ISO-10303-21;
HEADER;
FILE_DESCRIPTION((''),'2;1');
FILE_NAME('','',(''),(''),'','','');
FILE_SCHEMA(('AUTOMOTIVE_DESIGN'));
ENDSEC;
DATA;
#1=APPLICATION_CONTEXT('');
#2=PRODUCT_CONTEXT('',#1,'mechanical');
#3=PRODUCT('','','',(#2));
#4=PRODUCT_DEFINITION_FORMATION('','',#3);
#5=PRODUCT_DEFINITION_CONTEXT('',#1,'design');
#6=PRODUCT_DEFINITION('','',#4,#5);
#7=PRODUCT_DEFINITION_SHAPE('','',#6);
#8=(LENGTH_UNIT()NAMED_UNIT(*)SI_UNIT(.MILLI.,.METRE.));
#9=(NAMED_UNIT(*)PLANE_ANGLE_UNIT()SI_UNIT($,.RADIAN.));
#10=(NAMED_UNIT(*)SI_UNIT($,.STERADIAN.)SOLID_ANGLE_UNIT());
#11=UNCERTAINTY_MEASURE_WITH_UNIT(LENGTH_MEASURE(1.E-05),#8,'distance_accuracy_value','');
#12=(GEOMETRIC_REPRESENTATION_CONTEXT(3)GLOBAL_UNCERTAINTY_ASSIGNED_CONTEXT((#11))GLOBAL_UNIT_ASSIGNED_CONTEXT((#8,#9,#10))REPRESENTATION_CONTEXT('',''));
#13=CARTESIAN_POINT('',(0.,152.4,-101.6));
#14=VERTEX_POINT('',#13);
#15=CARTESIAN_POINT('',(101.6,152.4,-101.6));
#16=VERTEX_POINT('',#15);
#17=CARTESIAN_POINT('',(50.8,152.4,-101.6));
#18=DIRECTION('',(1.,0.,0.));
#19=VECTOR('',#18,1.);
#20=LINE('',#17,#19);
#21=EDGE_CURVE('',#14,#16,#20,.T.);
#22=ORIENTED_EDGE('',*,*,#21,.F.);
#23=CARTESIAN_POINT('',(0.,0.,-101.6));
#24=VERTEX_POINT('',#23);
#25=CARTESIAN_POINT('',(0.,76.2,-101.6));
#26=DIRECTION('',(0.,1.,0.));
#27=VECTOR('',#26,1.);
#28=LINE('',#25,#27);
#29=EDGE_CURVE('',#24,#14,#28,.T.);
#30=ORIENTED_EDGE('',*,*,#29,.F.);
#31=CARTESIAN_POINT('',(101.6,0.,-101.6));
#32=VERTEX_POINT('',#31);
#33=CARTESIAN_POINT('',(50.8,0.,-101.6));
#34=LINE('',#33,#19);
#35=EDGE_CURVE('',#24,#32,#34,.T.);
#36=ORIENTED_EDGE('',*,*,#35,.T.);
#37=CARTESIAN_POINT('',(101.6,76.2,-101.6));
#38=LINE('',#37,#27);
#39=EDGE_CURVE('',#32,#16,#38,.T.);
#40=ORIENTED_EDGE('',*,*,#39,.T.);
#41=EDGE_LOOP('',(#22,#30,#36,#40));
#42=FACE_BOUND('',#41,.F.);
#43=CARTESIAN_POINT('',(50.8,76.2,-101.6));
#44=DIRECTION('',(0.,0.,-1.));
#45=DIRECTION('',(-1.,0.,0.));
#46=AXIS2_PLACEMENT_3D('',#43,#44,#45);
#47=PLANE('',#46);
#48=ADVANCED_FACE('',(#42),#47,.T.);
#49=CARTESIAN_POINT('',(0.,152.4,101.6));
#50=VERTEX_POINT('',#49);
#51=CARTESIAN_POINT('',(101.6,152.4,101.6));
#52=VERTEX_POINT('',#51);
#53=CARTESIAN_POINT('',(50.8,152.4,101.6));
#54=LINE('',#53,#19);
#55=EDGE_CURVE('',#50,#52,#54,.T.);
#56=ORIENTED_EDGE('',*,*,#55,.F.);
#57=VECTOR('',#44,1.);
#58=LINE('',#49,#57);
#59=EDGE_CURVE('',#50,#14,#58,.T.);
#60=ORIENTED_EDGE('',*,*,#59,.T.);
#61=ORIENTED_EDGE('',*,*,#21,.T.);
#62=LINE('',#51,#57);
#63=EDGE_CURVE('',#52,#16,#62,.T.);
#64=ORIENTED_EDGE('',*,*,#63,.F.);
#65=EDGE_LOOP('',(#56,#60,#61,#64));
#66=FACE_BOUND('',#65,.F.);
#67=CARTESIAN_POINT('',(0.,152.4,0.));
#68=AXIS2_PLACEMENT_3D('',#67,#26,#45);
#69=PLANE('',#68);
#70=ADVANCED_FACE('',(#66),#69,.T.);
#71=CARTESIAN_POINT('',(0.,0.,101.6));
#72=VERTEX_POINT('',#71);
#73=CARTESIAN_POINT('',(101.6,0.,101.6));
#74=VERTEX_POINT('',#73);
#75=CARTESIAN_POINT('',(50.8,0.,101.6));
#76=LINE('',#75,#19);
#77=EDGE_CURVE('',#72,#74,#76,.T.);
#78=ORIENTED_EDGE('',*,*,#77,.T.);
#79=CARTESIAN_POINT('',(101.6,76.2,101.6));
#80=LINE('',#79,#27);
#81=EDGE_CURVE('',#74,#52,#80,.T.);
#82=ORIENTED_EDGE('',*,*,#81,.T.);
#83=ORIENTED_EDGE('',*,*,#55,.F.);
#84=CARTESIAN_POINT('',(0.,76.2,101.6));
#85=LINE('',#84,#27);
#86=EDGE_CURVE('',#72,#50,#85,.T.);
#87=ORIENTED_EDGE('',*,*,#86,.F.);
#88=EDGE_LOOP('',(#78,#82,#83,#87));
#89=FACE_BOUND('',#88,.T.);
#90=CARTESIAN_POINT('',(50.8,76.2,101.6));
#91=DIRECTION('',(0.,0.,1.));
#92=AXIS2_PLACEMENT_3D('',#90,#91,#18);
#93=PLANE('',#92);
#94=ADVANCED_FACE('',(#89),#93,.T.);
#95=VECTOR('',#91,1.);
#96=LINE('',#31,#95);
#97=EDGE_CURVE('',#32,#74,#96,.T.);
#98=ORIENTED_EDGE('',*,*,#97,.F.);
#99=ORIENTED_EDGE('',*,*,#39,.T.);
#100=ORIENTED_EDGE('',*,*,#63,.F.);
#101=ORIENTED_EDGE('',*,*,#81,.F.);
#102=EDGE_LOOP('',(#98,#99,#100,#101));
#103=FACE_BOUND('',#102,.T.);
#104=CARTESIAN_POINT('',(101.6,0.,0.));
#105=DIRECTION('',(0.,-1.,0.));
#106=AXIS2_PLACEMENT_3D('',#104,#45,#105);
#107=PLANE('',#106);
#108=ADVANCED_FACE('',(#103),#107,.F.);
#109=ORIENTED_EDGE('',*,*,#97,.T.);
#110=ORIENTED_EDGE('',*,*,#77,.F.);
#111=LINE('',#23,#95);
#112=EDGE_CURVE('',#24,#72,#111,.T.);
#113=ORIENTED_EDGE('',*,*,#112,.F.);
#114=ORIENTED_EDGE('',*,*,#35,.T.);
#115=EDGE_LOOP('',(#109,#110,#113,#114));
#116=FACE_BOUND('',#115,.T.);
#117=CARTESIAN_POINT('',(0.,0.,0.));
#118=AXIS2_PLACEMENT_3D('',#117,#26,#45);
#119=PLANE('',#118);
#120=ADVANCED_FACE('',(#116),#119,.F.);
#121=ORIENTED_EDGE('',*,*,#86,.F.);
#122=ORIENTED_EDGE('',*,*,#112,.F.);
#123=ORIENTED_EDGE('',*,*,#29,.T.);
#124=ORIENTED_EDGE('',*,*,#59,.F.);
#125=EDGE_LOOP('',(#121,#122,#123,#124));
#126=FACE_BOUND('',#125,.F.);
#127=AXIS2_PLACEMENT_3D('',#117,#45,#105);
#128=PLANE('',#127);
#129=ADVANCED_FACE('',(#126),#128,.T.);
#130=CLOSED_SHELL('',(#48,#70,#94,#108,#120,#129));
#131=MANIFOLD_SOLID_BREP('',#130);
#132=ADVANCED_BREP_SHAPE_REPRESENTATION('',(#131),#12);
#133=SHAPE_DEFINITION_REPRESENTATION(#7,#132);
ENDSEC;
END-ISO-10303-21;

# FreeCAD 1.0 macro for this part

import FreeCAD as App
import Part
import Sketcher
Q = App.Units.Quantity


def add_polygon(sketch, points):
    """Adds a closed chain of lines whose ends are joined by coincident constraints."""
    first, n = sketch.GeometryCount, len(points)
    for a, b in zip(points, points[1:] + points[:1]):
        sketch.addGeometry(Part.LineSegment(App.Vector(*a, 0), App.Vector(*b, 0)), False)
    for i in range(n):
        sketch.addConstraint(Sketcher.Constraint("Coincident", first + i, 2, first + (i + 1) % n, 1))

doc = App.newDocument("Part")
body = doc.addObject("PartDesign::Body", "Body")

sketch1 = body.newObject("Sketcher::SketchObject", "Sketch")
sketch1.AttachmentSupport = (doc.getObject("XY_Plane"), [""])
sketch1.MapMode = "FlatFace"
add_polygon(sketch1, [(0, 152), (0, 0), (102, 0), (102, 152)])
sketch1.addConstraint(Sketcher.Constraint("Vertical", 0))
sketch1.addConstraint(Sketcher.Constraint("Horizontal", 1))
sketch1.addConstraint(Sketcher.Constraint("Vertical", 2))
sketch1.addConstraint(Sketcher.Constraint("Horizontal", 3))
sketch1.addConstraint(Sketcher.Constraint("Coincident", 0, 2, -1, 1))
sketch1.addConstraint(Sketcher.Constraint("DistanceX", 1, 1, 1, 2, Q("4 in")))
sketch1.addConstraint(Sketcher.Constraint("DistanceY", 0, 2, 0, 1, Q("6 in")))
pad1 = body.newObject("PartDesign::Pad", "Pad")
pad1.Profile = sketch1
pad1.Length = Q("4 in")
body2 = doc.addObject("PartDesign::Body", "Body001")
doc.recompute()

body2.BaseFeature = body
doc.recompute()

mirroring = doc.addObject("Part::Mirroring", "Mirroring")
mirroring.Source = body
mirroring.Base = App.Vector(50.8, 76.2, 0)
mirroring.Normal = App.Vector(0, 0, -1)
body3 = doc.addObject("PartDesign::Body", "Body002")
body3.BaseFeature = mirroring
boolean = body2.newObject("PartDesign::Boolean", "Boolean")
boolean.Type = "Fuse"
boolean.addObjects([body3])
doc.recompute()
mirroring.Visibility = False

doc.recompute()
